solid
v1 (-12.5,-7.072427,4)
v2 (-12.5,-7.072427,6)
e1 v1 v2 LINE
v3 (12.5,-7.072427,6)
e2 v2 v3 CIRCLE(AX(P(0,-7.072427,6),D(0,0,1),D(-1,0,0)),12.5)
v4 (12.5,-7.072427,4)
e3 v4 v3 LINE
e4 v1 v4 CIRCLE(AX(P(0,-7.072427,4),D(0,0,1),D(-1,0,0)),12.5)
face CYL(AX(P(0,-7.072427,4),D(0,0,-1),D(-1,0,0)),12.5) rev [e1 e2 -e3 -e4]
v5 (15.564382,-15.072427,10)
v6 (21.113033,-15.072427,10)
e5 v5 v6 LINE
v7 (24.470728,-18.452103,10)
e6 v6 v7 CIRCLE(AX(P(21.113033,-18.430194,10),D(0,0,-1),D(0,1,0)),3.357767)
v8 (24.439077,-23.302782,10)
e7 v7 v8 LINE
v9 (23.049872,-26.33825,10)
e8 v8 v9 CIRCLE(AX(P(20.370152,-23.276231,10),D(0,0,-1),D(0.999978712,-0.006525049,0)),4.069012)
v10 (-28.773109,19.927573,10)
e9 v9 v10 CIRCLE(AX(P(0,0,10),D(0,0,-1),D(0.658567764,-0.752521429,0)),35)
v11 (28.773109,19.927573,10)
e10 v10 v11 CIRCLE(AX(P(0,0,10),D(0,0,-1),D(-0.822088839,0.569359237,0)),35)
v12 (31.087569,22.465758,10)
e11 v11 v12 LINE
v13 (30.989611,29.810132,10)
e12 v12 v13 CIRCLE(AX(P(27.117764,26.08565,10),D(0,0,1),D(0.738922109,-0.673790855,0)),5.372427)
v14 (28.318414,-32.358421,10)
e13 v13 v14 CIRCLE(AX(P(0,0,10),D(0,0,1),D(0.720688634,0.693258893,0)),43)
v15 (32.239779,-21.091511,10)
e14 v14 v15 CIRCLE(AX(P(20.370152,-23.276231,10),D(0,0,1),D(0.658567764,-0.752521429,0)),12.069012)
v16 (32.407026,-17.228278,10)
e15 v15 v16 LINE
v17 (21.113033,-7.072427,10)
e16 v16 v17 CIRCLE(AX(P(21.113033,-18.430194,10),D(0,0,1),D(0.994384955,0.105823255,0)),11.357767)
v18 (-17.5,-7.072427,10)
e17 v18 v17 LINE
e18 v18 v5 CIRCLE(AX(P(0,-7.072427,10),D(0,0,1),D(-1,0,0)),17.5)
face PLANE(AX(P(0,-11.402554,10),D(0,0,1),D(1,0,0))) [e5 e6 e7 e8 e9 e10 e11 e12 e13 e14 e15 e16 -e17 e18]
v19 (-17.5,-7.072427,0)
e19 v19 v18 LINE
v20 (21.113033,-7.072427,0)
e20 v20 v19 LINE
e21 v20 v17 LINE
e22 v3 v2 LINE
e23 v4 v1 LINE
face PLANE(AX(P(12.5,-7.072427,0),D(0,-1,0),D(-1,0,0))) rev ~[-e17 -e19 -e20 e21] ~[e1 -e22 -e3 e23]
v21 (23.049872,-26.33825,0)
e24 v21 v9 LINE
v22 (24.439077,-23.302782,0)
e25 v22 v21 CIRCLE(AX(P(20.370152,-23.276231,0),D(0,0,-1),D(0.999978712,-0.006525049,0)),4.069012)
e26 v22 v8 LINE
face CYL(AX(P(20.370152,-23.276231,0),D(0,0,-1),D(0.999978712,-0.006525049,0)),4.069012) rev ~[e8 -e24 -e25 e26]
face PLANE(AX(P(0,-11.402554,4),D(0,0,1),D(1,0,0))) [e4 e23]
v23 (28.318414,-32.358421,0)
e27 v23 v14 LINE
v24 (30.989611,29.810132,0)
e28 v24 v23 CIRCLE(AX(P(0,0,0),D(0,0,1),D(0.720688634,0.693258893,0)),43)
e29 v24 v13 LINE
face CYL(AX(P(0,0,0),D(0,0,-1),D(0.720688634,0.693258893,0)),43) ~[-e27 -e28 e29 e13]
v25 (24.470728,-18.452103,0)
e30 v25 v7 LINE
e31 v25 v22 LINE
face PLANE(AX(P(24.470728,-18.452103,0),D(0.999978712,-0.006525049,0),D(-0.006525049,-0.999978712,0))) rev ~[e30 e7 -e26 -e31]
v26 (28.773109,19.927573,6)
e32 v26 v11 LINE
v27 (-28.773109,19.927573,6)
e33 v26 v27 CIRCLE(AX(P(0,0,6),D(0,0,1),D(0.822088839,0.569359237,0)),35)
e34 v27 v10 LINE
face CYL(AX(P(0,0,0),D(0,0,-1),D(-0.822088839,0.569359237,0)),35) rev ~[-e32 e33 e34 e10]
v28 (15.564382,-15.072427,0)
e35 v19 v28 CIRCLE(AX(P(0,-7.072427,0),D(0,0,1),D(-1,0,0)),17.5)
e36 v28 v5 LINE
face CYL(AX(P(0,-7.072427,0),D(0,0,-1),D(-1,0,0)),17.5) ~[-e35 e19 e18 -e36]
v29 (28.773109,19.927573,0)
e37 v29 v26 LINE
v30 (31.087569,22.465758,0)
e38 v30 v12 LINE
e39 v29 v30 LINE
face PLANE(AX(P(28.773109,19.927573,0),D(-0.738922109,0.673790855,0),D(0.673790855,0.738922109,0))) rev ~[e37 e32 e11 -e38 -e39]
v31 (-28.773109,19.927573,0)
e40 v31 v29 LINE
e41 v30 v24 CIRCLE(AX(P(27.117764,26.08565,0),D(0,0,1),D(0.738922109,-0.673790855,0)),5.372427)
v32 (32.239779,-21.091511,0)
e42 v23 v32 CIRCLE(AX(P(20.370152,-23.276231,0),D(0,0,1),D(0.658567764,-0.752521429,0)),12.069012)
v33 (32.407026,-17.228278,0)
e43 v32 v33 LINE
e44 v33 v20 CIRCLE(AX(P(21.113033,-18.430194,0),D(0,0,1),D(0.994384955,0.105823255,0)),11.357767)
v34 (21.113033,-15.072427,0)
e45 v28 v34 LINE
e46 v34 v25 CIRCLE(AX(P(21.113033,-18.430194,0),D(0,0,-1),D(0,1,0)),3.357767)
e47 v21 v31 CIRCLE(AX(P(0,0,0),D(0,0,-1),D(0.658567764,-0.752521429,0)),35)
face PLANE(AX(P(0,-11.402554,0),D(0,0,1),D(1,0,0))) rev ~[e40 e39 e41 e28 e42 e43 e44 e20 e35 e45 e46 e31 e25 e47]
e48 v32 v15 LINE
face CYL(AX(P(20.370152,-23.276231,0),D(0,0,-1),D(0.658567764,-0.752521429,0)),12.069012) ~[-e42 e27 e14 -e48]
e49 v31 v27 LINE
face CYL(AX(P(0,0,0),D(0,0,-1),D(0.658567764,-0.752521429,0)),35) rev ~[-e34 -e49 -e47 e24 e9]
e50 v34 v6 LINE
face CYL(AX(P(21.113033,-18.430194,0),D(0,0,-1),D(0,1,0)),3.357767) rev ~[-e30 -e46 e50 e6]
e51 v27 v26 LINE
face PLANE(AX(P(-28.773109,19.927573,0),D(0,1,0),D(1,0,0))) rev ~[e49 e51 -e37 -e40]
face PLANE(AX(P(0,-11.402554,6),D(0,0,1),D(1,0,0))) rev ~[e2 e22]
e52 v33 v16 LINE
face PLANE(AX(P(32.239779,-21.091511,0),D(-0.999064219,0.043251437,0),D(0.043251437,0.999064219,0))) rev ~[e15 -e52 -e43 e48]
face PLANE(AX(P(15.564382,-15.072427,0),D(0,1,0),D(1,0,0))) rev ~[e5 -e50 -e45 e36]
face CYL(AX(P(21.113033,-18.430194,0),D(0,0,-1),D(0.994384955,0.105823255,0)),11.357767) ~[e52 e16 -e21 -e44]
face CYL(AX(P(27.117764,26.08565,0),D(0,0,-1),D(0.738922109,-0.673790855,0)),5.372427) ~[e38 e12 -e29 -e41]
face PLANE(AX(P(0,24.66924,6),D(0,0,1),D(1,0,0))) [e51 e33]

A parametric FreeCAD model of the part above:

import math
import FreeCAD as App
import Part
import Sketcher
Q = App.Units.Quantity

doc = App.newDocument("Part")
body = doc.addObject("PartDesign::Body", "Body")

# Sketch on XY plane
sketch1 = doc.addObject("Sketcher::SketchObject", "Sketch")
body.addObject(sketch1)
sketch1.AttachmentSupport = (doc.XY_Plane, [""])
sketch1.MapMode = "FlatFace"
sketch1.addGeometry(Part.ArcOfCircle(Part.Circle(App.Vector(0, 0, 0), App.Vector(0, 0, 1), 35), math.radians(34.705555), math.radians(145.294445)), False)
sketch1.addGeometry(Part.LineSegment(App.Vector(28.773109, 19.927573, 0), App.Vector(31.087569, 22.465758, 0)), False)
sketch1.addGeometry(Part.ArcOfCircle(Part.Circle(App.Vector(27.117764, 26.08565, 0), App.Vector(0, 0, 1), 5.372427), math.radians(-42.360323), math.radians(43.888635)), False)
sketch1.addGeometry(Part.ArcOfCircle(Part.Circle(App.Vector(0, 0, 0), App.Vector(0, 0, 1), 43), math.radians(43.888635), math.radians(311.190734)), False)
sketch1.addGeometry(Part.ArcOfCircle(Part.Circle(App.Vector(20.370152, -23.276231, 0), App.Vector(0, 0, 1), 12.069012), math.radians(-48.809266), math.radians(10.429117)), False)
sketch1.addGeometry(Part.LineSegment(App.Vector(32.239779, -21.091511, 0), App.Vector(32.407026, -17.228278, 0)), False)
sketch1.addGeometry(Part.ArcOfCircle(Part.Circle(App.Vector(21.113033, -18.430194, 0), App.Vector(0, 0, 1), 11.357767), math.radians(6.0746), math.radians(90)), False)
sketch1.addGeometry(Part.LineSegment(App.Vector(21.113033, -7.072427, 0), App.Vector(12.5, -7.072427, 0)), False)
sketch1.addGeometry(Part.ArcOfCircle(Part.Circle(App.Vector(0, -7.072427, 0), App.Vector(0, 0, 1), 12.5), math.radians(180), math.radians(360)), False)
sketch1.addGeometry(Part.LineSegment(App.Vector(-12.5, -7.072427, 0), App.Vector(-17.5, -7.072427, 0)), False)
sketch1.addGeometry(Part.ArcOfCircle(Part.Circle(App.Vector(0, -7.072427, 0), App.Vector(0, 0, 1), 17.5), math.radians(180), math.radians(332.797106)), False)
sketch1.addGeometry(Part.LineSegment(App.Vector(15.564382, -15.072427, 0), App.Vector(21.113033, -15.072427, 0)), False)
sketch1.addGeometry(Part.ArcOfCircle(Part.Circle(App.Vector(21.113033, -18.430194, 0), App.Vector(0, 0, 1), 3.357767), math.radians(-0.37386), math.radians(90)), False)
sketch1.addGeometry(Part.LineSegment(App.Vector(24.470728, -18.452103, 0), App.Vector(24.439077, -23.302782, 0)), False)
sketch1.addGeometry(Part.ArcOfCircle(Part.Circle(App.Vector(20.370152, -23.276231, 0), App.Vector(0, 0, 1), 4.069012), math.radians(-48.809266), math.radians(-0.37386)), False)
sketch1.addGeometry(Part.ArcOfCircle(Part.Circle(App.Vector(0, 0, 0), App.Vector(0, 0, 1), 35), math.radians(145.294445), math.radians(311.190734)), False)
sketch1.addConstraint(Sketcher.Constraint("Coincident", 0, 1, 1, 1))
sketch1.addConstraint(Sketcher.Constraint("Tangent", 1, 2, 2, 1))
sketch1.addConstraint(Sketcher.Constraint("Tangent", 2, 2, 3, 1))
sketch1.addConstraint(Sketcher.Constraint("Tangent", 3, 2, 4, 1))
sketch1.addConstraint(Sketcher.Constraint("Coincident", 4, 2, 5, 1))
sketch1.addConstraint(Sketcher.Constraint("Coincident", 5, 2, 6, 1))
sketch1.addConstraint(Sketcher.Constraint("Tangent", 6, 2, 7, 1))
sketch1.addConstraint(Sketcher.Constraint("Coincident", 7, 2, 8, 2))
sketch1.addConstraint(Sketcher.Constraint("Coincident", 8, 1, 9, 1))
sketch1.addConstraint(Sketcher.Constraint("Coincident", 9, 2, 10, 1))
sketch1.addConstraint(Sketcher.Constraint("Coincident", 10, 2, 11, 1))
sketch1.addConstraint(Sketcher.Constraint("Tangent", 11, 2, 12, 2))
sketch1.addConstraint(Sketcher.Constraint("Tangent", 12, 1, 13, 1))
sketch1.addConstraint(Sketcher.Constraint("Tangent", 13, 2, 14, 2))
sketch1.addConstraint(Sketcher.Constraint("Tangent", 14, 1, 15, 2))
sketch1.addConstraint(Sketcher.Constraint("Tangent", 15, 1, 0, 2))
sketch1.addConstraint(Sketcher.Constraint("Horizontal", 7))
sketch1.addConstraint(Sketcher.Constraint("Horizontal", 9))
sketch1.addConstraint(Sketcher.Constraint("Horizontal", 11))
sketch1.addConstraint(Sketcher.Constraint("Coincident", 0, 3, -1, 1))
sketch1.addConstraint(Sketcher.Constraint("Coincident", 3, 3, -1, 1))
sketch1.addConstraint(Sketcher.Constraint("Coincident", 10, 3, 8, 3))
sketch1.addConstraint(Sketcher.Constraint("Coincident", 12, 3, 6, 3))
sketch1.addConstraint(Sketcher.Constraint("Coincident", 14, 3, 4, 3))
sketch1.addConstraint(Sketcher.Constraint("Equal", 0, 15))
sketch1.addConstraint(Sketcher.Constraint("Symmetric", 7, 2, 8, 1, -2))
sketch1.addConstraint(Sketcher.Constraint("Horizontal", 10, 3, 6, 2))
sketch1.addConstraint(Sketcher.Constraint("Horizontal", 0, 1, 15, 1))
sketch1.addConstraint(Sketcher.Constraint("Radius", 0, Q("35 mm")))
sketch1.addConstraint(Sketcher.Constraint("Radius", 3, Q("43 mm")))
sketch1.addConstraint(Sketcher.Constraint("Radius", 8, Q("12.5 mm")))
sketch1.addConstraint(Sketcher.Constraint("Radius", 10, Q("17.5 mm")))
sketch1.addConstraint(Sketcher.Constraint("DistanceY", 10, 2, 7, 2, Q("8 mm")))
sketch1.addConstraint(Sketcher.Constraint("DistanceY", 9, 2, 15, 1, Q("27 mm")))
sketch1.addConstraint(Sketcher.Constraint("Radius", 4, Q("12.069012 mm")))
sketch1.addConstraint(Sketcher.Constraint("Radius", 2, Q("5.372427 mm")))
sketch1.addConstraint(Sketcher.Constraint("Radius", 6, Q("11.357767 mm")))
sketch1.addConstraint(Sketcher.Constraint("DistanceX", 11, 1, 11, 2, Q("5.54865 mm")))
sketch1.addConstraint(Sketcher.Constraint("DistanceX", 0, 1, 2, 2, Q("2.216502 mm")))
sketch1.addConstraint(Sketcher.Constraint("Distance", 13, Q("4.850782 mm")))
sketch1.addConstraint(Sketcher.Constraint("DistanceY", -1, 1, 2, 3, Q("26.08565 mm")))
sketch1.addConstraint(Sketcher.Constraint("DistanceX", -1, 1, 4, 2, Q("32.239779 mm")))
sketch1.addConstraint(Sketcher.Constraint("DistanceY", 5, 2, 6, 2, Q("10.155851 mm")))
pad1 = doc.addObject("PartDesign::Pad", "Pad")
body.addObject(pad1)
pad1.Profile = sketch1
pad1.Length = 10

# Sketch on XY plane
sketch2 = doc.addObject("Sketcher::SketchObject", "Sketch001")
body.addObject(sketch2)
sketch2.AttachmentSupport = (doc.XY_Plane, [""])
sketch2.MapMode = "FlatFace"
sketch2.addGeometry(Part.LineSegment(App.Vector(-28.773109, 19.927573, 0), App.Vector(28.773109, 19.927573, 0)), False)
sketch2.addGeometry(Part.ArcOfCircle(Part.Circle(App.Vector(0, 0, 0), App.Vector(0, 0, 1), 35), math.radians(34.705555), math.radians(145.294445)), False)
sketch2.addConstraint(Sketcher.Constraint("Coincident", 0, 1, 1, 2))
sketch2.addConstraint(Sketcher.Constraint("Coincident", 1, 1, 0, 2))
sketch2.addConstraint(Sketcher.Constraint("Horizontal", 0))
sketch2.addConstraint(Sketcher.Constraint("Coincident", 1, 3, -1, 1))
sketch2.addConstraint(Sketcher.Constraint("Radius", 1, Q("35 mm")))
sketch2.addConstraint(Sketcher.Constraint("DistanceX", 0, 1, 0, 2, Q("57.546219 mm")))
pad2 = doc.addObject("PartDesign::Pad", "Pad001")
body.addObject(pad2)
pad2.Profile = sketch2
pad2.Length = 6

# Sketch on XY plane
sketch3 = doc.addObject("Sketcher::SketchObject", "Sketch002")
body.addObject(sketch3)
sketch3.AttachmentSupport = (doc.XY_Plane, [""])
sketch3.MapMode = "FlatFace"
sketch3.addGeometry(Part.ArcOfCircle(Part.Circle(App.Vector(0, -7.072427, 0), App.Vector(0, 0, 1), 12.5), math.radians(180), math.radians(360)), False)
sketch3.addGeometry(Part.LineSegment(App.Vector(12.5, -7.072427, 0), App.Vector(-12.5, -7.072427, 0)), False)
sketch3.addConstraint(Sketcher.Constraint("Coincident", 0, 1, 1, 2))
sketch3.addConstraint(Sketcher.Constraint("Coincident", 1, 1, 0, 2))
sketch3.addConstraint(Sketcher.Constraint("Horizontal", 1))
sketch3.addConstraint(Sketcher.Constraint("PointOnObject", 0, 3, -2))
sketch3.addConstraint(Sketcher.Constraint("Radius", 0, Q("12.5 mm")))
sketch3.addConstraint(Sketcher.Constraint("DistanceY", 0, 3, -1, 1, Q("7.072427 mm")))
sketch3.addConstraint(Sketcher.Constraint("DistanceY", 0, 1, -1, 1, Q("7.072427 mm")))
pad3 = doc.addObject("PartDesign::Pad", "Pad002")
body.addObject(pad3)
pad3.Profile = sketch3
pad3.Length = 10

# Sketch on XY plane
sketch4 = doc.addObject("Sketcher::SketchObject", "Sketch003")
body.addObject(sketch4)
sketch4.AttachmentSupport = (doc.XY_Plane, [""])
sketch4.MapMode = "FlatFace"
sketch4.AttachmentOffset = App.Placement(App.Vector(0, 0, 4), App.Rotation())
sketch4.addGeometry(Part.ArcOfCircle(Part.Circle(App.Vector(0, -7.072427, 0), App.Vector(0, 0, 1), 12.5), math.radians(180), math.radians(360)), False)
sketch4.addGeometry(Part.LineSegment(App.Vector(12.5, -7.072427, 0), App.Vector(-12.5, -7.072427, 0)), False)
sketch4.addConstraint(Sketcher.Constraint("Coincident", 0, 1, 1, 2))
sketch4.addConstraint(Sketcher.Constraint("Coincident", 1, 1, 0, 2))
sketch4.addConstraint(Sketcher.Constraint("Horizontal", 1))
sketch4.addConstraint(Sketcher.Constraint("PointOnObject", 0, 3, -2))
sketch4.addConstraint(Sketcher.Constraint("Radius", 0, Q("12.5 mm")))
sketch4.addConstraint(Sketcher.Constraint("DistanceY", 0, 3, -1, 1, Q("7.072427 mm")))
sketch4.addConstraint(Sketcher.Constraint("DistanceY", 0, 1, -1, 1, Q("7.072427 mm")))
pocket1 = doc.addObject("PartDesign::Pocket", "Pocket")
body.addObject(pocket1)
pocket1.Profile = sketch4
pocket1.Length = 2
pocket1.Reversed = True

doc.recompute()
